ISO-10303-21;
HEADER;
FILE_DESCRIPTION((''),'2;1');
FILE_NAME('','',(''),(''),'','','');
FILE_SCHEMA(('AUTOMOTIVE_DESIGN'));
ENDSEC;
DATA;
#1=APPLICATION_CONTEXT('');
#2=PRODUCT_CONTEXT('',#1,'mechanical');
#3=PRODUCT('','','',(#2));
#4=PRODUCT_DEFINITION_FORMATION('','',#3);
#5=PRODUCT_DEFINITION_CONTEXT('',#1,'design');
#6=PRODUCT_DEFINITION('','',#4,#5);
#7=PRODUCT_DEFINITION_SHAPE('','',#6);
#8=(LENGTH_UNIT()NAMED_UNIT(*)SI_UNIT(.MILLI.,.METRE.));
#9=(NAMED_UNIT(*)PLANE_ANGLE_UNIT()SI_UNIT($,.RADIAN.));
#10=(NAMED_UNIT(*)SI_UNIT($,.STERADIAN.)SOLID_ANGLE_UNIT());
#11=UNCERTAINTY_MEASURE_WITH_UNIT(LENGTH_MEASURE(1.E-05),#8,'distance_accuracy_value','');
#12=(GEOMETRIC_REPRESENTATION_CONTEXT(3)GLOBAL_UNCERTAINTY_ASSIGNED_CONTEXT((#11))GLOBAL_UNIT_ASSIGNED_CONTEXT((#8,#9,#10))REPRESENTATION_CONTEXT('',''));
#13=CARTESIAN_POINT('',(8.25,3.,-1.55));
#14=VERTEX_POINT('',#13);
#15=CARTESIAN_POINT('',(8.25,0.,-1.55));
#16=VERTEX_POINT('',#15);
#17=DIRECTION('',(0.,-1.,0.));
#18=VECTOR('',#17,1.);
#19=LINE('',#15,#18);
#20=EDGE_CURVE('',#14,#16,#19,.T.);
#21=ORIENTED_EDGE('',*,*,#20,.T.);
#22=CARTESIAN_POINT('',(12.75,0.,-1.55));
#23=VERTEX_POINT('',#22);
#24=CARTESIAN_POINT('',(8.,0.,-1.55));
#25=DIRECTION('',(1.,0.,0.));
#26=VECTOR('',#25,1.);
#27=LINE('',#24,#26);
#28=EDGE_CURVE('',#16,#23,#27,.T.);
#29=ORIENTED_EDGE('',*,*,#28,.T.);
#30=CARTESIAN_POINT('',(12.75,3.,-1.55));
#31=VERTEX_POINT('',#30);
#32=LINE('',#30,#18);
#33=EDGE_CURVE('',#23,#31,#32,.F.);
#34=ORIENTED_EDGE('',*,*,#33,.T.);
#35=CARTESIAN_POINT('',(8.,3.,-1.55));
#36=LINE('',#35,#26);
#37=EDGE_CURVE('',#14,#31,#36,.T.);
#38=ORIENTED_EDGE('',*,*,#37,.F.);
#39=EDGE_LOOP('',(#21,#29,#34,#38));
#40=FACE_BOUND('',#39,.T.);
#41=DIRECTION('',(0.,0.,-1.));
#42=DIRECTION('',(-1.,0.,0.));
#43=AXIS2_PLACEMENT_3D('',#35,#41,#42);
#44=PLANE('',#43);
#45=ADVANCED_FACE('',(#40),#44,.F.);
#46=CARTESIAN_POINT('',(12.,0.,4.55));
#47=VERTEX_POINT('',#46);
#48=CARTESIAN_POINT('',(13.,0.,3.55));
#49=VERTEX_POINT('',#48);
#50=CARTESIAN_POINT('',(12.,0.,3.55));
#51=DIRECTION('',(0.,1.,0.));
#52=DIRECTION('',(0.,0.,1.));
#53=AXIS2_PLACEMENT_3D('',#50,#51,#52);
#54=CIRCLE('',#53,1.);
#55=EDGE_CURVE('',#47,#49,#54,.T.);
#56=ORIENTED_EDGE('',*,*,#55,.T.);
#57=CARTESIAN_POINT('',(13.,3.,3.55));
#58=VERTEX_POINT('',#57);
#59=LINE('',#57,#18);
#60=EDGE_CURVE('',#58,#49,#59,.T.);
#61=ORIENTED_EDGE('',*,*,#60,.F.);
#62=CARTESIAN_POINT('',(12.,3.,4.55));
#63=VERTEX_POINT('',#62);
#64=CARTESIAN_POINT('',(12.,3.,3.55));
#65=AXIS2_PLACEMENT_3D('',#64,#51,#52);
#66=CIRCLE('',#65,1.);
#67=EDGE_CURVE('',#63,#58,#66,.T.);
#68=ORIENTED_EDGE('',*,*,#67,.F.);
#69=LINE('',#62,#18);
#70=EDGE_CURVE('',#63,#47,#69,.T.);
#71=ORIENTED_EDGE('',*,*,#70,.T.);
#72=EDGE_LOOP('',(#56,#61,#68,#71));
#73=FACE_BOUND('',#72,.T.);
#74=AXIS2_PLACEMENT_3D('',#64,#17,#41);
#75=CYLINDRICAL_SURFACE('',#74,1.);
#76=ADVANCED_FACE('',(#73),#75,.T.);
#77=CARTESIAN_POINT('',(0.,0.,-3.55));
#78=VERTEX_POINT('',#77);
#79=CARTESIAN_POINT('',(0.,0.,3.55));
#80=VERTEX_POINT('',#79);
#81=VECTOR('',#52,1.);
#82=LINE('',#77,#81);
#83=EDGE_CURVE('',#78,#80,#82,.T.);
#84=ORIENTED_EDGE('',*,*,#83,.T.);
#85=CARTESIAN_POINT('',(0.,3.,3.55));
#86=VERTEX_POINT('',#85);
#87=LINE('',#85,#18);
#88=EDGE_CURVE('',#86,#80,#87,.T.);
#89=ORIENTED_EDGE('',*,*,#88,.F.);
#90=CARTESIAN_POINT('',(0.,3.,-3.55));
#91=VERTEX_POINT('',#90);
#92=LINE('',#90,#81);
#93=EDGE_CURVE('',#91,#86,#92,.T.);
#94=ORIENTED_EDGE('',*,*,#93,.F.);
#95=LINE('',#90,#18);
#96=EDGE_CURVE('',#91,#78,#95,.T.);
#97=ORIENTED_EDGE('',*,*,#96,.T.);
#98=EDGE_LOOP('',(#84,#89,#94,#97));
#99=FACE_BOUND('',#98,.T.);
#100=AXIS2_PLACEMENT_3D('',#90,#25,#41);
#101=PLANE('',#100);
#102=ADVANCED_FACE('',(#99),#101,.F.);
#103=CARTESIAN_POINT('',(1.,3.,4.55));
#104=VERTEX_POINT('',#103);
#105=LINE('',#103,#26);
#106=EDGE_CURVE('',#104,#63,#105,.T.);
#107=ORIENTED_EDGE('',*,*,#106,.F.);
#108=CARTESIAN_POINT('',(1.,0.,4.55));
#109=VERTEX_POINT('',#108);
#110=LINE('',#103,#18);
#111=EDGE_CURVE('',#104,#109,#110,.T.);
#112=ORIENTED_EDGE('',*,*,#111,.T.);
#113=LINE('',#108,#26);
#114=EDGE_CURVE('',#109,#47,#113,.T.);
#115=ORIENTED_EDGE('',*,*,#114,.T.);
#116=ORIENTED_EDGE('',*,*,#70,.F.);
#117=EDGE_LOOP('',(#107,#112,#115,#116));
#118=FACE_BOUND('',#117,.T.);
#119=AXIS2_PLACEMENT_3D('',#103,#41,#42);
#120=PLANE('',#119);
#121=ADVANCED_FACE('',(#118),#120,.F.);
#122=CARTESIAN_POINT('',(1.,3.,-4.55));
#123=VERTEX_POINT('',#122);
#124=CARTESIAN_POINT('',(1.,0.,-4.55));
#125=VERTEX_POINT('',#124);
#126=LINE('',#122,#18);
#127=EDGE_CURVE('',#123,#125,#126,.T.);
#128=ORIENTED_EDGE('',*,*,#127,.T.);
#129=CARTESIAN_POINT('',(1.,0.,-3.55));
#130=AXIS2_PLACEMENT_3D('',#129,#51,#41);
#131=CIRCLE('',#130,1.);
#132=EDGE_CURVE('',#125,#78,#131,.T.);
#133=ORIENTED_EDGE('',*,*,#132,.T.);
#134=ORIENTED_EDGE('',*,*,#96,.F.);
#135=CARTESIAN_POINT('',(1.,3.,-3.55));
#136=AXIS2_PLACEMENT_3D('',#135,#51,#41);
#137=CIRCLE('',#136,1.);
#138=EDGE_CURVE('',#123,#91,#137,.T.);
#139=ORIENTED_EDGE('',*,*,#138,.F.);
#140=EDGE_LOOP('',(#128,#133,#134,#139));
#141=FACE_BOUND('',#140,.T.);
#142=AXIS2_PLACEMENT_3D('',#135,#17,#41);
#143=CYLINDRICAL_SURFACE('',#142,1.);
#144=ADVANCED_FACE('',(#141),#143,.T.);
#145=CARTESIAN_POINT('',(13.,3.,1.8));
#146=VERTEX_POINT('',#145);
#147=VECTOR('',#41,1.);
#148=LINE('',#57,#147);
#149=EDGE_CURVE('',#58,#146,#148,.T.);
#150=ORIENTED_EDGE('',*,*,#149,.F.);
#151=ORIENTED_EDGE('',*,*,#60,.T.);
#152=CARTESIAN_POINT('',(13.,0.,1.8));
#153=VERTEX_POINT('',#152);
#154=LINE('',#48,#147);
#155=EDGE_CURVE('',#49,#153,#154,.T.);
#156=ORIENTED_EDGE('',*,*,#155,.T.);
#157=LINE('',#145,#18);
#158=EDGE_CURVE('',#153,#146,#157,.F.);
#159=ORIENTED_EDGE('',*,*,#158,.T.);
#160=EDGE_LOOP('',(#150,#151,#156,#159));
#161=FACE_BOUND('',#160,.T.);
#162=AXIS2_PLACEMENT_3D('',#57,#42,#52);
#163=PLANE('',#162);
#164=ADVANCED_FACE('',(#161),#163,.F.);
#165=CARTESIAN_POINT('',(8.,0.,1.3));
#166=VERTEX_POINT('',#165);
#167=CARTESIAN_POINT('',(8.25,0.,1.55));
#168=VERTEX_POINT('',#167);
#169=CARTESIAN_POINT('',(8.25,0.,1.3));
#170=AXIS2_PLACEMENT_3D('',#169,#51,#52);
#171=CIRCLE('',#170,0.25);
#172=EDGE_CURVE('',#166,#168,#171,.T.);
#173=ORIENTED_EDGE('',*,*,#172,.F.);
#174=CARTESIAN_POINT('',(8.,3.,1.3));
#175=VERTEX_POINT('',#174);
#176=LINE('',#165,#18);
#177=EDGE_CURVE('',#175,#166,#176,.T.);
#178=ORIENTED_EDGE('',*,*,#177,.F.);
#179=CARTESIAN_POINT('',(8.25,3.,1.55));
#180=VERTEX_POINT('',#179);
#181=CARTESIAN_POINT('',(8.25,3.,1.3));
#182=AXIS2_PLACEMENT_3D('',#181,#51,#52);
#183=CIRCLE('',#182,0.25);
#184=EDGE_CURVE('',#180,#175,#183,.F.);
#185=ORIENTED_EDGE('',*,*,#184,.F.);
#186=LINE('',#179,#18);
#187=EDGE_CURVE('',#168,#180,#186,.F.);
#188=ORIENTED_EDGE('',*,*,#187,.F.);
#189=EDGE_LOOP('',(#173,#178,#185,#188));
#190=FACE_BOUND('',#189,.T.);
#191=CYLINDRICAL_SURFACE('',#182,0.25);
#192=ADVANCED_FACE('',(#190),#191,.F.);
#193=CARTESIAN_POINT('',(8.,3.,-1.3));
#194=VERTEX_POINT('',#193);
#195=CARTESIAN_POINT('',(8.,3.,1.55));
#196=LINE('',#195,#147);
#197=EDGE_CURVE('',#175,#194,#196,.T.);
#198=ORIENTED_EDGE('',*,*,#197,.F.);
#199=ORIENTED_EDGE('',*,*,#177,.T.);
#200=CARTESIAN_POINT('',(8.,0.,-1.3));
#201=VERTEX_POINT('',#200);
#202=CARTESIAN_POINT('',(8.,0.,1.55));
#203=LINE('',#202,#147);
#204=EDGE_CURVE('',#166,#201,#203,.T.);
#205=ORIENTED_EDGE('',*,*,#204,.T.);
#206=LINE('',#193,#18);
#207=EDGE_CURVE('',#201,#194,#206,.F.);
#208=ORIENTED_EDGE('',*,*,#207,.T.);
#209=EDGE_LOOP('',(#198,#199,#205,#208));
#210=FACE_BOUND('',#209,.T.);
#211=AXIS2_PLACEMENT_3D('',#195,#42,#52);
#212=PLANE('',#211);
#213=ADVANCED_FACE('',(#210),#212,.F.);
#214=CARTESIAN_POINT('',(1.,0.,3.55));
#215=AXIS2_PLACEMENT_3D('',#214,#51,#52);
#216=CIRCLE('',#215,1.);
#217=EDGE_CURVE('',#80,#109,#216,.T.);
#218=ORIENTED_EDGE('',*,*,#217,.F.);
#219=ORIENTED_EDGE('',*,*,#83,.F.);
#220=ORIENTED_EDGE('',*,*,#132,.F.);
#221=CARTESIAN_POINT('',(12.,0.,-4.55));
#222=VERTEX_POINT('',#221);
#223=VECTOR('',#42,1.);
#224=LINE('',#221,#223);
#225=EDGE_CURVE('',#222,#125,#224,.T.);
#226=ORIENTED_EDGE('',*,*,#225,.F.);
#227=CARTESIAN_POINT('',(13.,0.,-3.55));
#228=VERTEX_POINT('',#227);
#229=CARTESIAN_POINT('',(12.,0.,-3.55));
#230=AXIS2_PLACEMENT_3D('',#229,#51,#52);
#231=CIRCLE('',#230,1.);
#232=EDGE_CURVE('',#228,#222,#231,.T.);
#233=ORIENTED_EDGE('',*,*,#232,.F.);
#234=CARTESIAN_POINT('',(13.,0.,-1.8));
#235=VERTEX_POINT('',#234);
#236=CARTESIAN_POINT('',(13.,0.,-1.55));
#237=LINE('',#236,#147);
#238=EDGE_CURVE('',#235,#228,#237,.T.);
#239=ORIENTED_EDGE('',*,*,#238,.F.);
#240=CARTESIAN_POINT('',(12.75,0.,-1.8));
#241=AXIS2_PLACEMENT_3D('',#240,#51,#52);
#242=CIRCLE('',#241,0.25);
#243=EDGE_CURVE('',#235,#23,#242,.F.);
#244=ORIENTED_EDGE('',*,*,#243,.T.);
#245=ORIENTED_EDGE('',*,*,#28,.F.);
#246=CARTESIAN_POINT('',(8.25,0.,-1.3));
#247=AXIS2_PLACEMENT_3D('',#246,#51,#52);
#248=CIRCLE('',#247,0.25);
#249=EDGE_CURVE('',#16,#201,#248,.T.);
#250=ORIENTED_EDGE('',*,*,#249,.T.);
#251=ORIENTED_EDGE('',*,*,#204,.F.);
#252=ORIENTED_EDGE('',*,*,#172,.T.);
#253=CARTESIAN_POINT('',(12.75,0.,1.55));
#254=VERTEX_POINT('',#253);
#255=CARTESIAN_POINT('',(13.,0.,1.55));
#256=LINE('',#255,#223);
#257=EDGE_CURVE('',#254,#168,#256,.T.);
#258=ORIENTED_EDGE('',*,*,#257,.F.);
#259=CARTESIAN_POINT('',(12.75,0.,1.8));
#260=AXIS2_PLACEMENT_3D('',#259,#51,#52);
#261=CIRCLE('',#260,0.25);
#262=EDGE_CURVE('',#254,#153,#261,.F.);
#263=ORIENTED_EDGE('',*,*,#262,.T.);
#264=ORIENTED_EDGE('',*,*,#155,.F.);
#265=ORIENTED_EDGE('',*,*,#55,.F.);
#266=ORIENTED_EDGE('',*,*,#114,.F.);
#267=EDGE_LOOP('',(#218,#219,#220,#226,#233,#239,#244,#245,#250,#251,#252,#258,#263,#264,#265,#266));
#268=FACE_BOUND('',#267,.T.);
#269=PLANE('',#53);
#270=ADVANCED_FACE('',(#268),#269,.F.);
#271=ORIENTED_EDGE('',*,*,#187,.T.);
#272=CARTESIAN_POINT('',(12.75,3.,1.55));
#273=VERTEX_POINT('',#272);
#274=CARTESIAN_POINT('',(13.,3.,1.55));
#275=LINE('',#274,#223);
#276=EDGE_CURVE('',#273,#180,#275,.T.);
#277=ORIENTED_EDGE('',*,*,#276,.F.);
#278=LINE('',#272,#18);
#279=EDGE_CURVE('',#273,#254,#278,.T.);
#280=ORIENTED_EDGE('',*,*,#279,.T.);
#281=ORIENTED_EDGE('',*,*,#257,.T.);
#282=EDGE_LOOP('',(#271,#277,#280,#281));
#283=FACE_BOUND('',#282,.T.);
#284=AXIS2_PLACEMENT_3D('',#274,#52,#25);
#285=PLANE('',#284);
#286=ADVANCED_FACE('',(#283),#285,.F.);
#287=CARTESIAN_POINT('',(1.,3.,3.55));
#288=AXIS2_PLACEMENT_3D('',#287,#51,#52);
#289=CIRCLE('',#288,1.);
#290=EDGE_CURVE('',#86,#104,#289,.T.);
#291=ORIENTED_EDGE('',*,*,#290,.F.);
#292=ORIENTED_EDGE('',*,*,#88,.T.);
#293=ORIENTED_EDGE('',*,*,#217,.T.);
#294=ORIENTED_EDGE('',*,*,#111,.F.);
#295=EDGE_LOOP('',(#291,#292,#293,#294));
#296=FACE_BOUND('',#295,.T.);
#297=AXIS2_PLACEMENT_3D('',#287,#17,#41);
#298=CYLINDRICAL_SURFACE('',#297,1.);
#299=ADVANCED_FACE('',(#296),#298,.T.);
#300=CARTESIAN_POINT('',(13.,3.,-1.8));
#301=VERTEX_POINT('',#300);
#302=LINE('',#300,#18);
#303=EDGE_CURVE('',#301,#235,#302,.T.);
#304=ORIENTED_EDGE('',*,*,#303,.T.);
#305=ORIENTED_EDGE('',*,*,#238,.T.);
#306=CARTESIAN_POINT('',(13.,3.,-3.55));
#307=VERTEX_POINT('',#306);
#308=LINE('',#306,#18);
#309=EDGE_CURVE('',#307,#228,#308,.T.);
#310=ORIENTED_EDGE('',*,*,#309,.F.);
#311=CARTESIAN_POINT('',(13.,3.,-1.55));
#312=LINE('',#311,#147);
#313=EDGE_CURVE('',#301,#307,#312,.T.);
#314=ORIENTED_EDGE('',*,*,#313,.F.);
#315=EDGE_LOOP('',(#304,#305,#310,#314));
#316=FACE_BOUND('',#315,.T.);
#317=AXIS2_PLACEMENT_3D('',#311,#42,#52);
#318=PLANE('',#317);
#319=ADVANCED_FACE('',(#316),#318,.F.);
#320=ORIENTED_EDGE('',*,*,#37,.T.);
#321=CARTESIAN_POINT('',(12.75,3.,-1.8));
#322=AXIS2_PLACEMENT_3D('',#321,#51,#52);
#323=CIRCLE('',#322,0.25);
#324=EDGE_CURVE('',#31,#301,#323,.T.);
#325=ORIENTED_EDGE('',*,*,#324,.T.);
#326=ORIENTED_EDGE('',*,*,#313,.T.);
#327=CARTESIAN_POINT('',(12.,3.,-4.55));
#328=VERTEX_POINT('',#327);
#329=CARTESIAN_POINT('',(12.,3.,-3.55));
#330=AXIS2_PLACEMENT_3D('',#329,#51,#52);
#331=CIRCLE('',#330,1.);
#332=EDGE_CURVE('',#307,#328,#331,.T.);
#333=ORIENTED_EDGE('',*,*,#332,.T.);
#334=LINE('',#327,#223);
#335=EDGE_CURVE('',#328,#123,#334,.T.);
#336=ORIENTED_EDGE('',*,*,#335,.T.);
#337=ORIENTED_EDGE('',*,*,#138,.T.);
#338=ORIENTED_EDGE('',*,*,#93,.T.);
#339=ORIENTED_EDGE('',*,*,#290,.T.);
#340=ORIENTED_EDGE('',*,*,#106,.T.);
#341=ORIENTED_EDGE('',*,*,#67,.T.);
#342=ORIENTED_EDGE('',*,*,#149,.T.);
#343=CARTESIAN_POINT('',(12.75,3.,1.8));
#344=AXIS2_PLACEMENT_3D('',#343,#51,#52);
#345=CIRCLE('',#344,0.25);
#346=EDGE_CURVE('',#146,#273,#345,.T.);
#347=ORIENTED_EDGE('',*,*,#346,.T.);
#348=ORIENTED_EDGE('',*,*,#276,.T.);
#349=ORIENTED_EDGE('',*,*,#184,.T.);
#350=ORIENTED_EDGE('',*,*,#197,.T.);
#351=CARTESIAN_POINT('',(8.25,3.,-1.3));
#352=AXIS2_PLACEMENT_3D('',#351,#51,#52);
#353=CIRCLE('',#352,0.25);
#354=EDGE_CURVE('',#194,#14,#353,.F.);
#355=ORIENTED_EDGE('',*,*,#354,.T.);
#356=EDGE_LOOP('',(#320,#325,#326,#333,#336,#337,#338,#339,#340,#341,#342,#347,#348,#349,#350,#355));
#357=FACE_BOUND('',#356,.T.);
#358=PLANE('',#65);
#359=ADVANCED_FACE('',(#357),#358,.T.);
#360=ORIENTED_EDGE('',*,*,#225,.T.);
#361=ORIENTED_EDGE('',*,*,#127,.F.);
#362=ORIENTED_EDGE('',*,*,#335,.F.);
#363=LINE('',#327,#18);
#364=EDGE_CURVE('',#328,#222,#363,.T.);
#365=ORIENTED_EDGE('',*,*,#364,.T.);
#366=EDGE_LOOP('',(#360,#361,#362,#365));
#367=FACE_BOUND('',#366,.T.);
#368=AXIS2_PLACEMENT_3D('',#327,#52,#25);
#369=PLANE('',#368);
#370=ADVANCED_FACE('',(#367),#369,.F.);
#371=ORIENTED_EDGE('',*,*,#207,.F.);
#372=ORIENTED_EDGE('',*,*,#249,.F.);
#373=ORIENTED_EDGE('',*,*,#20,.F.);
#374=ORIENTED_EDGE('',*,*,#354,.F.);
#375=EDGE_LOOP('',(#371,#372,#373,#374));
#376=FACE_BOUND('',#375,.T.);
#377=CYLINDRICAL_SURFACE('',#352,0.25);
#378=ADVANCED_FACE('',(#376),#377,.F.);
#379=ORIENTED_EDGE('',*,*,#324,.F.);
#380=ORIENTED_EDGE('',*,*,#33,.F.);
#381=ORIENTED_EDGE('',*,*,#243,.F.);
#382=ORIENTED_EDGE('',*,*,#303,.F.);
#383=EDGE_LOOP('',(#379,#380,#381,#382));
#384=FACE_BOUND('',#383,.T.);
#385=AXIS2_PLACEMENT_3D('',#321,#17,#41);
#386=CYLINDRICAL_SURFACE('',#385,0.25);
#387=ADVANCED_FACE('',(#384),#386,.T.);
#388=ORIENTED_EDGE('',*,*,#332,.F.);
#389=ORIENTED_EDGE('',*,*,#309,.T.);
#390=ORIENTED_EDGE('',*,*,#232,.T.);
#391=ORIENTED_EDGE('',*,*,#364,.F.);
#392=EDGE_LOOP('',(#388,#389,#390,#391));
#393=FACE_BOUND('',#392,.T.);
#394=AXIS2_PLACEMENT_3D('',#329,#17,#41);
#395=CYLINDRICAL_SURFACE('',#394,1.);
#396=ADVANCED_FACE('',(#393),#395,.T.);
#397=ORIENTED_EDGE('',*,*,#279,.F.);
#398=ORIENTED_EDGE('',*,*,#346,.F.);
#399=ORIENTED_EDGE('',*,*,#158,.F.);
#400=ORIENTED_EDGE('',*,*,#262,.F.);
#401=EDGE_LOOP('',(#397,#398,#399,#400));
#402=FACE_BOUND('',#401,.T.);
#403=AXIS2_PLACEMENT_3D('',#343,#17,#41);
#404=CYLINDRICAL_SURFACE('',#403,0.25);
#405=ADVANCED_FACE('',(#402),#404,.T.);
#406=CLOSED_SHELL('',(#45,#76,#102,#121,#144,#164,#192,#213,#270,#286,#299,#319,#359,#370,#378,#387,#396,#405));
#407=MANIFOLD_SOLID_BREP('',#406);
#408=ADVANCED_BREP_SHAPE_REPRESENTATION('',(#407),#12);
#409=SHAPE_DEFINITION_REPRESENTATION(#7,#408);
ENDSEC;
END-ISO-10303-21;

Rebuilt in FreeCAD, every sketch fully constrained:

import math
import FreeCAD as App
import Part
import Sketcher
Q = App.Units.Quantity


def edges_at(feature, points):
    """Names of the edges that pass closest to the given points."""
    edges = feature.Shape.Edges
    near = lambda p: min(range(len(edges)), key=lambda i: edges[i].distToShape(Part.Vertex(*p))[0])
    return sorted({f"Edge{near(p) + 1}" for p in points})

doc = App.newDocument("Part")
params = doc.addObject("Spreadsheet::Sheet", "Params")
for row, (alias, value) in enumerate([
    ("sketch1_radius", "1 mm"),
    ("sketch1_width", "11 mm"),
    ("sketch1_width2", "5 mm"),
    ("sketch1_height", "2 mm"),
    ("sketch1_height2", "7.1 mm"),
    ("pad1_length", "3 mm"),
    ("fillet_radius", "0.25 mm"),
], start=1):
    params.set(f"A{row}", alias)
    params.set(f"B{row}", "=" + value)
    params.setAlias(f"B{row}", alias)

body = doc.addObject("PartDesign::Body", "Body")

# Sketch on XZ plane
sketch1 = body.newObject("Sketcher::SketchObject", "Sketch")
sketch1.AttachmentSupport = (doc.getObject("XZ_Plane"), [""])
sketch1.MapMode = "FlatFace"
sketch1.addGeometry([
    Part.LineSegment(App.Vector(0, -3.55, 0), App.Vector(0, 3.55, 0)),  # 0
    Part.ArcOfCircle(Part.Circle(App.Vector(1, 3.55, 0), App.Vector(0, 0, 1), 1), math.radians(90), math.radians(180)),  # 1
    Part.LineSegment(App.Vector(1, 4.55, 0), App.Vector(12, 4.55, 0)),  # 2
    Part.ArcOfCircle(Part.Circle(App.Vector(12, 3.55, 0), App.Vector(0, 0, 1), 1), math.radians(0), math.radians(90)),  # 3
    Part.LineSegment(App.Vector(13, 3.55, 0), App.Vector(13, 1.55, 0)),  # 4
    Part.LineSegment(App.Vector(13, 1.55, 0), App.Vector(8, 1.55, 0)),  # 5
    Part.LineSegment(App.Vector(8, 1.55, 0), App.Vector(8, -1.55, 0)),  # 6
    Part.LineSegment(App.Vector(8, -1.55, 0), App.Vector(13, -1.55, 0)),  # 7
    Part.LineSegment(App.Vector(13, -1.55, 0), App.Vector(13, -3.55, 0)),  # 8
    Part.ArcOfCircle(Part.Circle(App.Vector(12, -3.55, 0), App.Vector(0, 0, 1), 1), math.radians(-90), math.radians(0)),  # 9
    Part.LineSegment(App.Vector(12, -4.55, 0), App.Vector(1, -4.55, 0)),  # 10
    Part.ArcOfCircle(Part.Circle(App.Vector(1, -3.55, 0), App.Vector(0, 0, 1), 1), math.radians(-180), math.radians(-90)),  # 11
], False)
sketch1.addConstraint([
    Sketcher.Constraint("Tangent", 0, 2, 1, 2),
    Sketcher.Constraint("Tangent", 1, 1, 2, 1),
    Sketcher.Constraint("Tangent", 2, 2, 3, 2),
    Sketcher.Constraint("Tangent", 3, 1, 4, 1),
    Sketcher.Constraint("Coincident", 4, 2, 5, 1),
    Sketcher.Constraint("Coincident", 5, 2, 6, 1),
    Sketcher.Constraint("Coincident", 6, 2, 7, 1),
    Sketcher.Constraint("Coincident", 7, 2, 8, 1),
    Sketcher.Constraint("Tangent", 8, 2, 9, 2),
    Sketcher.Constraint("Tangent", 9, 1, 10, 1),
    Sketcher.Constraint("Tangent", 10, 2, 11, 2),
    Sketcher.Constraint("Tangent", 11, 1, 0, 1),
    Sketcher.Constraint("Vertical", 0),
    Sketcher.Constraint("Horizontal", 2),
    Sketcher.Constraint("Vertical", 4),
    Sketcher.Constraint("Horizontal", 5),
    Sketcher.Constraint("Vertical", 6),
    Sketcher.Constraint("Horizontal", 7),
    Sketcher.Constraint("Vertical", 8),
    Sketcher.Constraint("Horizontal", 10),
    Sketcher.Constraint("Equal", 1, 3),
    Sketcher.Constraint("Equal", 3, 9),
    Sketcher.Constraint("Equal", 9, 11),
    Sketcher.Constraint("Symmetric", 0, 2, 11, 1, -1, 1),
    Sketcher.Constraint("Symmetric", 4, 2, 7, 2, -1),
    Sketcher.Constraint("Radius", 1, Q("1 mm")),
    Sketcher.Constraint("DistanceX", 2, 1, 2, 2, Q("11 mm")),
    Sketcher.Constraint("DistanceX", 5, 2, 5, 1, Q("5 mm")),
    Sketcher.Constraint("DistanceY", 4, 2, 4, 1, Q("2 mm")),
    Sketcher.Constraint("DistanceY", 0, 1, 0, 2, Q("7.1 mm")),
])
sketch1.setExpression("Constraints[25]", "Params.sketch1_radius")
sketch1.setExpression("Constraints[26]", "Params.sketch1_width")
sketch1.setExpression("Constraints[27]", "Params.sketch1_width2")
sketch1.setExpression("Constraints[28]", "Params.sketch1_height")
sketch1.setExpression("Constraints[29]", "Params.sketch1_height2")
pad1 = body.newObject("PartDesign::Pad", "Pad")
pad1.Profile = sketch1
pad1.setExpression("Length", "Params.pad1_length")
pad1.Reversed = True
doc.recompute()

fillet = body.newObject("PartDesign::Fillet", "Fillet")
fillet.Base = (pad1, edges_at(pad1, [
    (13, 1.5, -1.55),
    (8, 1.5, -1.55),
    (8, 1.5, 1.55),
    (13, 1.5, 1.55),
]))
fillet.setExpression("Radius", "Params.fillet_radius")

doc.recompute()
